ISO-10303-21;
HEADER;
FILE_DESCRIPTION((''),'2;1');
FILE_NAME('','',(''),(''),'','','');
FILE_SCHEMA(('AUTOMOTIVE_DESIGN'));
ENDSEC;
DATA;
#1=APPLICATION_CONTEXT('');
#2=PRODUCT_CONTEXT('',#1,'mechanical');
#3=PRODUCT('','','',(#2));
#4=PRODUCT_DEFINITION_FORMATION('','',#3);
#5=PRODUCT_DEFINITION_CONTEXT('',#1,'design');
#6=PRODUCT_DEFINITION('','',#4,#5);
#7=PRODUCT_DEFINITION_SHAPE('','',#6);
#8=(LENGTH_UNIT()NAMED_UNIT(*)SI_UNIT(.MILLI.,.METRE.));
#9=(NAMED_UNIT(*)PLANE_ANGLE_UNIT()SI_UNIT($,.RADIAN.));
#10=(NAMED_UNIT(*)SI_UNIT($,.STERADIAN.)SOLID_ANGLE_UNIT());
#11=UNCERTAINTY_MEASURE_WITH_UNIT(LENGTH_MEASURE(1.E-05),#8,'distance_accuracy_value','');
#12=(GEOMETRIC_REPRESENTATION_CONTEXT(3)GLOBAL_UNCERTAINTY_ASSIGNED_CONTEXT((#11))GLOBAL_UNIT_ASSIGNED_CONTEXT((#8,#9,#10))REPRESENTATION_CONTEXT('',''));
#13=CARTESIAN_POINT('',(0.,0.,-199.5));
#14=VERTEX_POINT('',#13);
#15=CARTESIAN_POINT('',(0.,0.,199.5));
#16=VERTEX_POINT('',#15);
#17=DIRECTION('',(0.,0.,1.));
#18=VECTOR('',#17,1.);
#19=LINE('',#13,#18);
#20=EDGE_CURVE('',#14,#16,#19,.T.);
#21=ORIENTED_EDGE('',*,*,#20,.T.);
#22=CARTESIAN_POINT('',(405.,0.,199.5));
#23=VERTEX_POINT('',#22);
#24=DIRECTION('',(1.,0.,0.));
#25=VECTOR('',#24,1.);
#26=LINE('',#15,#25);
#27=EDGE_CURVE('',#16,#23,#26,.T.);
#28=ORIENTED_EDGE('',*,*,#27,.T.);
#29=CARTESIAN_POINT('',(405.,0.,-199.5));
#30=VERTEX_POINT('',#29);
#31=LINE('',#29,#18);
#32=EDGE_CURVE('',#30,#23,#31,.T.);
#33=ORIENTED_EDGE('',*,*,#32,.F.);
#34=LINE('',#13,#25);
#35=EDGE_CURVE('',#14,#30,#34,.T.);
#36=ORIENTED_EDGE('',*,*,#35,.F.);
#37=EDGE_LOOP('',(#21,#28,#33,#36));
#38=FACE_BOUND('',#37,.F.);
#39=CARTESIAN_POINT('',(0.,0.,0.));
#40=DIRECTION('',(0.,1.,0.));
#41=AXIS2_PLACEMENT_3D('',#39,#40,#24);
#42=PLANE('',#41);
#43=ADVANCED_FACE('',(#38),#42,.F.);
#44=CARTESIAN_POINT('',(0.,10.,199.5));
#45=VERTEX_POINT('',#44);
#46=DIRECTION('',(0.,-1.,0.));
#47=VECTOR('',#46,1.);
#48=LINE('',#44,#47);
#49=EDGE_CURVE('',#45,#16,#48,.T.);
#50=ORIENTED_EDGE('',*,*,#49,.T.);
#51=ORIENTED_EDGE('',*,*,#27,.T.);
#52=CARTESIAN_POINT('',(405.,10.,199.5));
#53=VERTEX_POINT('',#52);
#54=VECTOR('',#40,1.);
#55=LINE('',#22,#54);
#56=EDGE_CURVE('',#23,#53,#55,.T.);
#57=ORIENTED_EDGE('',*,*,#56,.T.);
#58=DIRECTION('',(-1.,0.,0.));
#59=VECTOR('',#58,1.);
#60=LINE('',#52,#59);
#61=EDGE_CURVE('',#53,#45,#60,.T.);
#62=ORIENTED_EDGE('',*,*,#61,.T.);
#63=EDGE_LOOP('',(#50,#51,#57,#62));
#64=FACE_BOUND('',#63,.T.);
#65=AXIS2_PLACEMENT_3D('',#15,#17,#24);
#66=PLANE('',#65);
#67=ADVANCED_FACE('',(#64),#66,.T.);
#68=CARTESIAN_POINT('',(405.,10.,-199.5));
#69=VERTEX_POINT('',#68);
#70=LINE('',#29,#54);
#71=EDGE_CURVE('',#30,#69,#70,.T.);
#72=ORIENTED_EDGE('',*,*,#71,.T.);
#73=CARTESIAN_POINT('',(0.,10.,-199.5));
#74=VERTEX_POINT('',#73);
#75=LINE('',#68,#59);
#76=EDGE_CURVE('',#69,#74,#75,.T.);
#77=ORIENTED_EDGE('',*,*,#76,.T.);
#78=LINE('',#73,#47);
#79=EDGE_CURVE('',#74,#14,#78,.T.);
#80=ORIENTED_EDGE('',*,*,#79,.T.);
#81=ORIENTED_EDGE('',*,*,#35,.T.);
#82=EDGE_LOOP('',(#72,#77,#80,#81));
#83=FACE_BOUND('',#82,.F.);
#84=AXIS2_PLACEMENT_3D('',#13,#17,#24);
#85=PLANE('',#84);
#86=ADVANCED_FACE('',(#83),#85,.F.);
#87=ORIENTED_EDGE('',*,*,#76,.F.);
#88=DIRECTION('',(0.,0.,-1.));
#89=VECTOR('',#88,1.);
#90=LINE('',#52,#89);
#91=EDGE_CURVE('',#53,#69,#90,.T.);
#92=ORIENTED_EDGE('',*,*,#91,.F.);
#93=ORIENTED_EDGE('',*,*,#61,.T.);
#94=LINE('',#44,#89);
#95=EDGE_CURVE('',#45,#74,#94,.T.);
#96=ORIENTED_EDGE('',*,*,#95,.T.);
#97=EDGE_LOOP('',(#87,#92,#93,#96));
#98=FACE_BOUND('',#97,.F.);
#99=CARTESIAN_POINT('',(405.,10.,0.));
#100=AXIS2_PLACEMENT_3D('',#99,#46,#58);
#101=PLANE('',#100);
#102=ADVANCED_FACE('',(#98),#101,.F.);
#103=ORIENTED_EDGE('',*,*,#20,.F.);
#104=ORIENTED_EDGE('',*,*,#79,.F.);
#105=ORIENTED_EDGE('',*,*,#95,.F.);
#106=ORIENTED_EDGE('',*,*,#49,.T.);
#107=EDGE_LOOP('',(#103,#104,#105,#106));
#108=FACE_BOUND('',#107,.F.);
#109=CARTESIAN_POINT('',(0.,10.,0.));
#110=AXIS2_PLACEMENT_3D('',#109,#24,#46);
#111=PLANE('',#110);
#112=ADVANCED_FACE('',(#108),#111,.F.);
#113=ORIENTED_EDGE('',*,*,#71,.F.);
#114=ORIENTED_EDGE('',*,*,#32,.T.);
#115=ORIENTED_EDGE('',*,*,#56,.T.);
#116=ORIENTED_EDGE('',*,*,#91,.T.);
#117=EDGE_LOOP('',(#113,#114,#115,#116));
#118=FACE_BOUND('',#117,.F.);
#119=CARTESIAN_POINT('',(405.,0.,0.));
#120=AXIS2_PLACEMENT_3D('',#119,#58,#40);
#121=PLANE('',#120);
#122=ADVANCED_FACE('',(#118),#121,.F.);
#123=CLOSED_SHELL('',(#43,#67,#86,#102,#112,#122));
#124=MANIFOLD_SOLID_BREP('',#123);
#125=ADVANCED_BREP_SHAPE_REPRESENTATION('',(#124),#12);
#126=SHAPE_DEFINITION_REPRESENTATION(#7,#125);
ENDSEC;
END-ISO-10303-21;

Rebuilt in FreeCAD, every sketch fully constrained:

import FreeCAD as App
import Part
import Sketcher
Q = App.Units.Quantity


def add_polygon(sketch, points):
    """Adds a closed chain of lines whose ends are joined by coincident constraints."""
    first, n = sketch.GeometryCount, len(points)
    for a, b in zip(points, points[1:] + points[:1]):
        sketch.addGeometry(Part.LineSegment(App.Vector(*a, 0), App.Vector(*b, 0)), False)
    for i in range(n):
        sketch.addConstraint(Sketcher.Constraint("Coincident", first + i, 2, first + (i + 1) % n, 1))

doc = App.newDocument("Part")
params = doc.addObject("Spreadsheet::Sheet", "Params")
for row, (alias, value) in enumerate([
    ("sketch1_width", "405 mm"),
    ("sketch1_height", "10 mm"),
    ("pad1_length", "399 mm"),
], start=1):
    params.set(f"A{row}", alias)
    params.set(f"B{row}", "=" + value)
    params.setAlias(f"B{row}", alias)

body = doc.addObject("PartDesign::Body", "Body")

# Sketch on XY plane
sketch1 = doc.addObject("Sketcher::SketchObject", "Sketch")
body.addObject(sketch1)
sketch1.AttachmentSupport = (doc.XY_Plane, [""])
sketch1.MapMode = "FlatFace"
add_polygon(sketch1, [(0, 10), (0, 0), (405, 0), (405, 10)])  # lines 0-3
sketch1.addConstraint([
    Sketcher.Constraint("Vertical", 0),
    Sketcher.Constraint("Horizontal", 1),
    Sketcher.Constraint("Vertical", 2),
    Sketcher.Constraint("Horizontal", 3),
    Sketcher.Constraint("Coincident", 0, 2, -1, 1),
    Sketcher.Constraint("DistanceX", 1, 1, 1, 2, Q("405 mm")),
    Sketcher.Constraint("DistanceY", 0, 2, 0, 1, Q("10 mm")),
])
sketch1.setExpression("Constraints[9]", "Params.sketch1_width")
sketch1.setExpression("Constraints[10]", "Params.sketch1_height")
pad1 = doc.addObject("PartDesign::Pad", "Pad")
body.addObject(pad1)
pad1.Profile = sketch1
pad1.setExpression("Length", "Params.pad1_length")
pad1.Midplane = True

doc.recompute()
